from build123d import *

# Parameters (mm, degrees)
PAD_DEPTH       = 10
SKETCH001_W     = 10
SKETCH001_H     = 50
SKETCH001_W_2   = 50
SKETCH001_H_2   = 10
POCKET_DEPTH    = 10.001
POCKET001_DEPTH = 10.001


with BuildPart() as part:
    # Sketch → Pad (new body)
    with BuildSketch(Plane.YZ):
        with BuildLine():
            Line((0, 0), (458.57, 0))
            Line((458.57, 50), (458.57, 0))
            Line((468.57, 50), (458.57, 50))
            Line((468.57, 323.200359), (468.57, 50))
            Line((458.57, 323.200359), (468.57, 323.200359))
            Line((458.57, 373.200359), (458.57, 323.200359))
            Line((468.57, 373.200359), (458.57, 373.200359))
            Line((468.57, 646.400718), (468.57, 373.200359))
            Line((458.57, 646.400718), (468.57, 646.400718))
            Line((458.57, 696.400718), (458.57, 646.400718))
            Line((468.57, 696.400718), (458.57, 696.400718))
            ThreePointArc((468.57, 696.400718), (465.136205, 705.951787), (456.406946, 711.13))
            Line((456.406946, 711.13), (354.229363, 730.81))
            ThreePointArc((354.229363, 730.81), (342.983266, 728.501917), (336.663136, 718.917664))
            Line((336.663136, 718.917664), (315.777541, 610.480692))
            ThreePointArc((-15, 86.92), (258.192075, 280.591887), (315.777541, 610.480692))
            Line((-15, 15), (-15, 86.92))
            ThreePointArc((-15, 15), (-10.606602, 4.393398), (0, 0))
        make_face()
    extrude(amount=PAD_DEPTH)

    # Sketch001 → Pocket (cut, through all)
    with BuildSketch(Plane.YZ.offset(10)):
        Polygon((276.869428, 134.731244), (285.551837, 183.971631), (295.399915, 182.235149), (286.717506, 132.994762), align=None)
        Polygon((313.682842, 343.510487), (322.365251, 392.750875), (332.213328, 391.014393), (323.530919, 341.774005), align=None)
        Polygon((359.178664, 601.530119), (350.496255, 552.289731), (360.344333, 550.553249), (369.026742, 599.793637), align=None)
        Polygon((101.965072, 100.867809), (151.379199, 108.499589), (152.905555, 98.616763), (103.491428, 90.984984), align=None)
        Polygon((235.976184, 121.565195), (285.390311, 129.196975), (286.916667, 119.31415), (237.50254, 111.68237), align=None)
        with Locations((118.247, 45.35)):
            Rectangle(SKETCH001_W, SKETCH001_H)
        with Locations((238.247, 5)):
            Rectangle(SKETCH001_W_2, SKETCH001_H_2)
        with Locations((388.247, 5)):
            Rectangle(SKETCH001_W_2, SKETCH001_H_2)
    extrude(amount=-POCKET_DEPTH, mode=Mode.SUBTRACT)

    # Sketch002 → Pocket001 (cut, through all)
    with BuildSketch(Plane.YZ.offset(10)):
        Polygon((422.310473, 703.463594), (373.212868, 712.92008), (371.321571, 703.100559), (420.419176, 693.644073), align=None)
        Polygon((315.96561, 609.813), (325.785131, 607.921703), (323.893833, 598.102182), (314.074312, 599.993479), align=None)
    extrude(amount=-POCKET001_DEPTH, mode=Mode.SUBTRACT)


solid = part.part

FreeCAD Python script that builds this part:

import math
import FreeCAD as App
import Part
import Sketcher
from FreeCAD import Vector
Q = App.Units.Quantity

doc = App.newDocument("Part")
body = doc.addObject("PartDesign::Body", "Body")

# Sketch on YZ plane
sketch1 = body.newObject("Sketcher::SketchObject", "Sketch")
sketch1.AttachmentSupport = (doc.getObject("YZ_Plane"), [""])
sketch1.MapMode = "FlatFace"
sketch1.addGeometry([
    Part.LineSegment(Vector(0, 0, 0), Vector(458.57, 0, 0)),  # 0
    Part.LineSegment(Vector(458.57, 0, 0), Vector(458.57, 50, 0)),  # 1
    Part.LineSegment(Vector(458.57, 50, 0), Vector(468.57, 50, 0)),  # 2
    Part.LineSegment(Vector(468.57, 50, 0), Vector(468.57, 323.200359, 0)),  # 3
    Part.LineSegment(Vector(468.57, 323.200359, 0), Vector(458.57, 323.200359, 0)),  # 4
    Part.LineSegment(Vector(458.57, 323.200359, 0), Vector(458.57, 373.200359, 0)),  # 5
    Part.LineSegment(Vector(458.57, 373.200359, 0), Vector(468.57, 373.200359, 0)),  # 6
    Part.LineSegment(Vector(468.57, 373.200359, 0), Vector(468.57, 646.400718, 0)),  # 7
    Part.LineSegment(Vector(468.57, 646.400718, 0), Vector(458.57, 646.400718, 0)),  # 8
    Part.LineSegment(Vector(458.57, 646.400718, 0), Vector(458.57, 696.400718, 0)),  # 9
    Part.LineSegment(Vector(458.57, 696.400718, 0), Vector(468.57, 696.400718, 0)),  # 10
    Part.ArcOfCircle(Part.Circle(Vector(453.570001, 696.400719, 0), Vector(0, 0, 1), 14.999999), math.radians(-0.000005), math.radians(79.098003)),  # 11
    Part.LineSegment(Vector(456.406946, 711.13, 0), Vector(354.229363, 730.81, 0)),  # 12
    Part.ArcOfCircle(Part.Circle(Vector(351.392417, 716.080719, 0), Vector(0, 0, 1), 14.999999), math.radians(79.097999), math.radians(169.098003)),  # 13
    Part.LineSegment(Vector(336.663136, 718.917664, 0), Vector(315.777541, 610.480692, 0)),  # 14
    Part.ArcOfCircle(Part.Circle(Vector(-113.552105, 515.454106, 0), Vector(0, 0, 1), 439.720362), math.radians(-77.048599), math.radians(12.480472)),  # 15
    Part.LineSegment(Vector(-15, 86.92, 0), Vector(-15, 15, 0)),  # 16
    Part.ArcOfCircle(Part.Circle(Vector(-0.000001, 14.999999, 0), Vector(0, 0, 1), 14.999999), math.radians(179.999996), math.radians(270.000004)),  # 17
], False)
sketch1.addConstraint([
    Sketcher.Constraint("Coincident", 0, 2, 1, 1),
    Sketcher.Constraint("Coincident", 1, 2, 2, 1),
    Sketcher.Constraint("Coincident", 2, 2, 3, 1),
    Sketcher.Constraint("Coincident", 3, 2, 4, 1),
    Sketcher.Constraint("Coincident", 4, 2, 5, 1),
    Sketcher.Constraint("Coincident", 5, 2, 6, 1),
    Sketcher.Constraint("Coincident", 6, 2, 7, 1),
    Sketcher.Constraint("Coincident", 7, 2, 8, 1),
    Sketcher.Constraint("Coincident", 8, 2, 9, 1),
    Sketcher.Constraint("Coincident", 9, 2, 10, 1),
    Sketcher.Constraint("Coincident", 10, 2, 11, 1),
    Sketcher.Constraint("Coincident", 11, 2, 12, 1),
    Sketcher.Constraint("Coincident", 12, 2, 13, 1),
    Sketcher.Constraint("Coincident", 13, 2, 14, 1),
    Sketcher.Constraint("Coincident", 14, 2, 15, 2),
    Sketcher.Constraint("Coincident", 15, 1, 16, 1),
    Sketcher.Constraint("Coincident", 16, 2, 17, 1),
    Sketcher.Constraint("Coincident", 17, 2, 0, 1),
    Sketcher.Constraint("Horizontal", 0),
    Sketcher.Constraint("Vertical", 1),
    Sketcher.Constraint("Horizontal", 2),
    Sketcher.Constraint("Vertical", 3),
    Sketcher.Constraint("Horizontal", 4),
    Sketcher.Constraint("Vertical", 5),
    Sketcher.Constraint("Horizontal", 6),
    Sketcher.Constraint("Vertical", 7),
    Sketcher.Constraint("Horizontal", 8),
    Sketcher.Constraint("Vertical", 9),
    Sketcher.Constraint("Horizontal", 10),
    Sketcher.Constraint("Vertical", 16),
    Sketcher.Constraint("Coincident", 17, 2, -1, 1),
    Sketcher.Constraint("PointOnObject", 17, 3, -2),
    Sketcher.Constraint("Radius", 11, 14.999999),
    Sketcher.Constraint("Radius", 13, 14.999999),
    Sketcher.Constraint("Radius", 17, 14.999999),
    Sketcher.Constraint("DistanceX", 2, 1, 2, 2, 10.0),
    Sketcher.Constraint("DistanceX", 4, 2, 4, 1, 10.0),
    Sketcher.Constraint("DistanceX", 6, 1, 6, 2, 10.0),
    Sketcher.Constraint("DistanceX", 8, 2, 8, 1, 10.0),
    Sketcher.Constraint("DistanceX", 10, 1, 10, 2, 10.0),
    Sketcher.Constraint("DistanceY", 1, 1, 1, 2, 50.0),
    Sketcher.Constraint("DistanceY", 5, 1, 5, 2, 50.0),
    Sketcher.Constraint("DistanceY", 9, 1, 9, 2, 50.0),
    Sketcher.Constraint("DistanceY", -1, 1, 16, 2, 15.0),
    Sketcher.Constraint("DistanceY", 7, 2, 11, 3, 50.000001),
    Sketcher.Constraint("DistanceX", 0, 1, 0, 2, 458.57),
    Sketcher.Constraint("DistanceY", 16, 2, 16, 1, 71.92),
    Sketcher.Constraint("Distance", 14, 110.43),
    Sketcher.Constraint("DistanceY", -1, 1, 11, 2, 711.13),
    Sketcher.Constraint("DistanceY", -1, 1, 12, 2, 730.81),
    Sketcher.Constraint("DistanceY", 11, 3, 13, 3, 19.68),
    Sketcher.Constraint("Radius", 15, 439.720362),
    Sketcher.Constraint("DistanceY", 3, 1, 3, 2, 273.200359),
    Sketcher.Constraint("DistanceY", 7, 1, 7, 2, 273.200359),
    Sketcher.Constraint("DistanceX", -1, 1, 14, 2, 315.777541),
    Sketcher.Constraint("DistanceY", -1, 1, 14, 2, 610.480692),
    Sketcher.Constraint("DistanceX", 15, 3, 13, 3, 464.944522),
])
pad1 = body.newObject("PartDesign::Pad", "Pad")
pad1.Profile = sketch1
pad1.Length = 10

# Sketch on YZ plane
sketch2 = body.newObject("Sketcher::SketchObject", "Sketch001")
sketch2.AttachmentSupport = (doc.getObject("YZ_Plane"), [""])
sketch2.MapMode = "FlatFace"
sketch2.AttachmentOffset = App.Placement(Vector(0, 0, 10), App.Rotation())
sketch2.addGeometry([
    Part.LineSegment(Vector(286, 184, 0), Vector(277, 135, 0)),  # 0
    Part.LineSegment(Vector(277, 135, 0), Vector(287, 133, 0)),  # 1
    Part.LineSegment(Vector(287, 133, 0), Vector(295, 182, 0)),  # 2
    Part.LineSegment(Vector(295, 182, 0), Vector(286, 184, 0)),  # 3
    Part.LineSegment(Vector(322, 393, 0), Vector(314, 344, 0)),  # 4
    Part.LineSegment(Vector(314, 344, 0), Vector(324, 342, 0)),  # 5
    Part.LineSegment(Vector(324, 342, 0), Vector(332, 391, 0)),  # 6
    Part.LineSegment(Vector(332, 391, 0), Vector(322, 393, 0)),  # 7
    Part.LineSegment(Vector(359, 602, 0), Vector(350, 552, 0)),  # 8
    Part.LineSegment(Vector(350, 552, 0), Vector(360, 551, 0)),  # 9
    Part.LineSegment(Vector(360, 551, 0), Vector(369, 600, 0)),  # 10
    Part.LineSegment(Vector(369, 600, 0), Vector(359, 602, 0)),  # 11
    Part.LineSegment(Vector(151, 108, 0), Vector(102, 101, 0)),  # 12
    Part.LineSegment(Vector(102, 101, 0), Vector(103, 91, 0)),  # 13
    Part.LineSegment(Vector(103, 91, 0), Vector(153, 99, 0)),  # 14
    Part.LineSegment(Vector(153, 99, 0), Vector(151, 108, 0)),  # 15
    Part.LineSegment(Vector(285, 129, 0), Vector(236, 122, 0)),  # 16
    Part.LineSegment(Vector(236, 122, 0), Vector(238, 112, 0)),  # 17
    Part.LineSegment(Vector(238, 112, 0), Vector(287, 119, 0)),  # 18
    Part.LineSegment(Vector(287, 119, 0), Vector(285, 129, 0)),  # 19
    Part.LineSegment(Vector(113, 70, 0), Vector(113, 20, 0)),  # 20
    Part.LineSegment(Vector(113, 20, 0), Vector(123, 20, 0)),  # 21
    Part.LineSegment(Vector(123, 20, 0), Vector(123, 70, 0)),  # 22
    Part.LineSegment(Vector(123, 70, 0), Vector(113, 70, 0)),  # 23
    Part.LineSegment(Vector(213, 10, 0), Vector(213, 0, 0)),  # 24
    Part.LineSegment(Vector(213, 0, 0), Vector(263, 0, 0)),  # 25
    Part.LineSegment(Vector(263, 0, 0), Vector(263, 10, 0)),  # 26
    Part.LineSegment(Vector(263, 10, 0), Vector(213, 10, 0)),  # 27
    Part.LineSegment(Vector(363, 10, 0), Vector(363, 0, 0)),  # 28
    Part.LineSegment(Vector(363, 0, 0), Vector(413, 0, 0)),  # 29
    Part.LineSegment(Vector(413, 0, 0), Vector(413, 10, 0)),  # 30
    Part.LineSegment(Vector(413, 10, 0), Vector(363, 10, 0)),  # 31
], False)
sketch2.addConstraint([
    Sketcher.Constraint("Coincident", 0, 2, 1, 1),
    Sketcher.Constraint("Coincident", 1, 2, 2, 1),
    Sketcher.Constraint("Coincident", 2, 2, 3, 1),
    Sketcher.Constraint("Coincident", 3, 2, 0, 1),
    Sketcher.Constraint("Coincident", 4, 2, 5, 1),
    Sketcher.Constraint("Coincident", 5, 2, 6, 1),
    Sketcher.Constraint("Coincident", 6, 2, 7, 1),
    Sketcher.Constraint("Coincident", 7, 2, 4, 1),
    Sketcher.Constraint("Coincident", 8, 2, 9, 1),
    Sketcher.Constraint("Coincident", 9, 2, 10, 1),
    Sketcher.Constraint("Coincident", 10, 2, 11, 1),
    Sketcher.Constraint("Coincident", 11, 2, 8, 1),
    Sketcher.Constraint("Coincident", 12, 2, 13, 1),
    Sketcher.Constraint("Coincident", 13, 2, 14, 1),
    Sketcher.Constraint("Coincident", 14, 2, 15, 1),
    Sketcher.Constraint("Coincident", 15, 2, 12, 1),
    Sketcher.Constraint("Coincident", 16, 2, 17, 1),
    Sketcher.Constraint("Coincident", 17, 2, 18, 1),
    Sketcher.Constraint("Coincident", 18, 2, 19, 1),
    Sketcher.Constraint("Coincident", 19, 2, 16, 1),
    Sketcher.Constraint("Coincident", 20, 2, 21, 1),
    Sketcher.Constraint("Coincident", 21, 2, 22, 1),
    Sketcher.Constraint("Coincident", 22, 2, 23, 1),
    Sketcher.Constraint("Coincident", 23, 2, 20, 1),
    Sketcher.Constraint("Coincident", 24, 2, 25, 1),
    Sketcher.Constraint("Coincident", 25, 2, 26, 1),
    Sketcher.Constraint("Coincident", 26, 2, 27, 1),
    Sketcher.Constraint("Coincident", 27, 2, 24, 1),
    Sketcher.Constraint("Coincident", 28, 2, 29, 1),
    Sketcher.Constraint("Coincident", 29, 2, 30, 1),
    Sketcher.Constraint("Coincident", 30, 2, 31, 1),
    Sketcher.Constraint("Coincident", 31, 2, 28, 1),
    Sketcher.Constraint("Vertical", 20),
    Sketcher.Constraint("Horizontal", 21),
    Sketcher.Constraint("Vertical", 22),
    Sketcher.Constraint("Horizontal", 23),
    Sketcher.Constraint("Vertical", 24),
    Sketcher.Constraint("Horizontal", 25),
    Sketcher.Constraint("Vertical", 26),
    Sketcher.Constraint("Horizontal", 27),
    Sketcher.Constraint("Vertical", 28),
    Sketcher.Constraint("Horizontal", 29),
    Sketcher.Constraint("Vertical", 30),
    Sketcher.Constraint("Horizontal", 31),
    Sketcher.Constraint("PointOnObject", 24, 2, -1),
    Sketcher.Constraint("PointOnObject", 28, 2, -1),
    Sketcher.Constraint("Perpendicular", 0, 1),
    Sketcher.Constraint("Perpendicular", 1, 2),
    Sketcher.Constraint("Perpendicular", 2, 3),
    Sketcher.Constraint("Perpendicular", 3, 4),
    Sketcher.Constraint("Perpendicular", 4, 5),
    Sketcher.Constraint("Perpendicular", 5, 6),
    Sketcher.Constraint("Perpendicular", 6, 7),
    Sketcher.Constraint("Perpendicular", 7, 8),
    Sketcher.Constraint("Perpendicular", 8, 9),
    Sketcher.Constraint("Perpendicular", 9, 10),
    Sketcher.Constraint("Perpendicular", 10, 11),
    Sketcher.Constraint("Perpendicular", 12, 13),
    Sketcher.Constraint("Perpendicular", 13, 14),
    Sketcher.Constraint("Perpendicular", 14, 15),
    Sketcher.Constraint("Perpendicular", 15, 16),
    Sketcher.Constraint("Perpendicular", 16, 17),
    Sketcher.Constraint("Perpendicular", 17, 18),
    Sketcher.Constraint("Perpendicular", 18, 19),
    Sketcher.Constraint("Horizontal", 27, 2, 30, 2),
    Sketcher.Constraint("Equal", 27, 29),
    Sketcher.Constraint("Equal", 31, 20),
    Sketcher.Constraint("Equal", 23, 24),
    Sketcher.Constraint("Equal", 2, 4),
    Sketcher.Constraint("Equal", 3, 5),
    Sketcher.Constraint("Equal", 6, 8),
    Sketcher.Constraint("Equal", 7, 9),
    Sketcher.Constraint("Equal", 10, 12),
    Sketcher.Constraint("Equal", 11, 13),
    Sketcher.Constraint("Equal", 14, 16),
    Sketcher.Constraint("Equal", 15, 17),
    Sketcher.Constraint("DistanceX", 21, 1, 21, 2, 10.0),
    Sketcher.Constraint("DistanceX", 25, 1, 25, 2, 50.0),
    Sketcher.Constraint("Angle", 0, Q("-100 deg")),
    Sketcher.Constraint("Distance", 0, 49.999999),
    Sketcher.Constraint("Distance", 1, 10.000001),
    Sketcher.Constraint("DistanceX", 21, 2, 24, 2, 90.0),
    Sketcher.Constraint("DistanceX", 25, 2, 28, 2, 100.0),
    Sketcher.Constraint("DistanceY", -1, 1, 20, 2, 20.35),
    Sketcher.Constraint("DistanceX", -1, 1, 20, 2, 113.247),
    Sketcher.Constraint("DistanceX", 13, 2, 0, 2, 173.378),
    Sketcher.Constraint("DistanceY", 14, 2, 1, 2, 34.377999),
    Sketcher.Constraint("DistanceY", 18, 2, 2, 2, 62.920999),
    Sketcher.Constraint("DistanceX", -1, 1, 15, 2, 151.379199),
    Sketcher.Constraint("DistanceY", 3, 2, 8, 2, 368.3181),
    Sketcher.Constraint("DistanceX", -1, 1, 0, 2, 276.869428),
    Sketcher.Constraint("DistanceY", -1, 1, 1, 2, 132.994762),
    Sketcher.Constraint("DistanceX", -1, 1, 4, 2, 313.682842),
    Sketcher.Constraint("DistanceX", -1, 1, 10, 2, 369.026742),
    Sketcher.Constraint("DistanceX", -1, 1, 17, 2, 237.50254),
    Sketcher.Constraint("DistanceY", 2, 2, 4, 2, 161.275338),
])
pocket1 = body.newObject("PartDesign::Pocket", "Pocket")
pocket1.Profile = sketch2
pocket1.Type = "ThroughAll"

# Sketch on YZ plane
sketch3 = body.newObject("Sketcher::SketchObject", "Sketch002")
sketch3.AttachmentSupport = (doc.getObject("YZ_Plane"), [""])
sketch3.MapMode = "FlatFace"
sketch3.AttachmentOffset = App.Placement(Vector(0, 0, 10), App.Rotation())
sketch3.addGeometry([
    Part.LineSegment(Vector(422.310473, 703.463594, 0), Vector(373.212868, 712.92008, 0)),  # 0
    Part.LineSegment(Vector(373.212868, 712.92008, 0), Vector(371.321571, 703.100559, 0)),  # 1
    Part.LineSegment(Vector(371.321571, 703.100559, 0), Vector(420.419176, 693.644073, 0)),  # 2
    Part.LineSegment(Vector(420.419176, 693.644073, 0), Vector(422.310473, 703.463594, 0)),  # 3
    Part.LineSegment(Vector(325.785131, 607.921703, 0), Vector(315.96561, 609.813, 0)),  # 4
    Part.LineSegment(Vector(315.96561, 609.813, 0), Vector(314.074312, 599.993479, 0)),  # 5
    Part.LineSegment(Vector(314.074312, 599.993479, 0), Vector(323.893833, 598.102182, 0)),  # 6
    Part.LineSegment(Vector(323.893833, 598.102182, 0), Vector(325.785131, 607.921703, 0)),  # 7
], False)
sketch3.addConstraint([
    Sketcher.Constraint("Coincident", 0, 2, 1, 1),
    Sketcher.Constraint("Coincident", 1, 2, 2, 1),
    Sketcher.Constraint("Coincident", 2, 2, 3, 1),
    Sketcher.Constraint("Coincident", 3, 2, 0, 1),
    Sketcher.Constraint("Coincident", 4, 2, 5, 1),
    Sketcher.Constraint("Coincident", 5, 2, 6, 1),
    Sketcher.Constraint("Coincident", 6, 2, 7, 1),
    Sketcher.Constraint("Coincident", 7, 2, 4, 1),
    Sketcher.Constraint("Perpendicular", 0, 1),
    Sketcher.Constraint("Perpendicular", 1, 2),
    Sketcher.Constraint("Perpendicular", 2, 3),
    Sketcher.Constraint("Perpendicular", 3, 4),
    Sketcher.Constraint("Perpendicular", 4, 5),
    Sketcher.Constraint("Perpendicular", 5, 6),
    Sketcher.Constraint("Perpendicular", 6, 7),
    Sketcher.Constraint("Equal", 3, 4),
    Sketcher.Constraint("Equal", 4, 5),
    Sketcher.Constraint("Distance", 0, 49.999999),
    Sketcher.Constraint("Distance", 1, 10.0),
    Sketcher.Constraint("DistanceY", -1, 1, 4, 2, 609.813),
    Sketcher.Constraint("DistanceX", 1, 2, 3, 2, 50.988902),
    Sketcher.Constraint("DistanceY", 5, 2, 0, 2, 112.926601),
    Sketcher.Constraint("DistanceX", -1, 1, 0, 2, 373.212868),
    Sketcher.Constraint("DistanceX", -1, 1, 4, 2, 315.96561),
])
pocket2 = body.newObject("PartDesign::Pocket", "Pocket001")
pocket2.Profile = sketch3
pocket2.Type = "ThroughAll"

doc.recompute()
